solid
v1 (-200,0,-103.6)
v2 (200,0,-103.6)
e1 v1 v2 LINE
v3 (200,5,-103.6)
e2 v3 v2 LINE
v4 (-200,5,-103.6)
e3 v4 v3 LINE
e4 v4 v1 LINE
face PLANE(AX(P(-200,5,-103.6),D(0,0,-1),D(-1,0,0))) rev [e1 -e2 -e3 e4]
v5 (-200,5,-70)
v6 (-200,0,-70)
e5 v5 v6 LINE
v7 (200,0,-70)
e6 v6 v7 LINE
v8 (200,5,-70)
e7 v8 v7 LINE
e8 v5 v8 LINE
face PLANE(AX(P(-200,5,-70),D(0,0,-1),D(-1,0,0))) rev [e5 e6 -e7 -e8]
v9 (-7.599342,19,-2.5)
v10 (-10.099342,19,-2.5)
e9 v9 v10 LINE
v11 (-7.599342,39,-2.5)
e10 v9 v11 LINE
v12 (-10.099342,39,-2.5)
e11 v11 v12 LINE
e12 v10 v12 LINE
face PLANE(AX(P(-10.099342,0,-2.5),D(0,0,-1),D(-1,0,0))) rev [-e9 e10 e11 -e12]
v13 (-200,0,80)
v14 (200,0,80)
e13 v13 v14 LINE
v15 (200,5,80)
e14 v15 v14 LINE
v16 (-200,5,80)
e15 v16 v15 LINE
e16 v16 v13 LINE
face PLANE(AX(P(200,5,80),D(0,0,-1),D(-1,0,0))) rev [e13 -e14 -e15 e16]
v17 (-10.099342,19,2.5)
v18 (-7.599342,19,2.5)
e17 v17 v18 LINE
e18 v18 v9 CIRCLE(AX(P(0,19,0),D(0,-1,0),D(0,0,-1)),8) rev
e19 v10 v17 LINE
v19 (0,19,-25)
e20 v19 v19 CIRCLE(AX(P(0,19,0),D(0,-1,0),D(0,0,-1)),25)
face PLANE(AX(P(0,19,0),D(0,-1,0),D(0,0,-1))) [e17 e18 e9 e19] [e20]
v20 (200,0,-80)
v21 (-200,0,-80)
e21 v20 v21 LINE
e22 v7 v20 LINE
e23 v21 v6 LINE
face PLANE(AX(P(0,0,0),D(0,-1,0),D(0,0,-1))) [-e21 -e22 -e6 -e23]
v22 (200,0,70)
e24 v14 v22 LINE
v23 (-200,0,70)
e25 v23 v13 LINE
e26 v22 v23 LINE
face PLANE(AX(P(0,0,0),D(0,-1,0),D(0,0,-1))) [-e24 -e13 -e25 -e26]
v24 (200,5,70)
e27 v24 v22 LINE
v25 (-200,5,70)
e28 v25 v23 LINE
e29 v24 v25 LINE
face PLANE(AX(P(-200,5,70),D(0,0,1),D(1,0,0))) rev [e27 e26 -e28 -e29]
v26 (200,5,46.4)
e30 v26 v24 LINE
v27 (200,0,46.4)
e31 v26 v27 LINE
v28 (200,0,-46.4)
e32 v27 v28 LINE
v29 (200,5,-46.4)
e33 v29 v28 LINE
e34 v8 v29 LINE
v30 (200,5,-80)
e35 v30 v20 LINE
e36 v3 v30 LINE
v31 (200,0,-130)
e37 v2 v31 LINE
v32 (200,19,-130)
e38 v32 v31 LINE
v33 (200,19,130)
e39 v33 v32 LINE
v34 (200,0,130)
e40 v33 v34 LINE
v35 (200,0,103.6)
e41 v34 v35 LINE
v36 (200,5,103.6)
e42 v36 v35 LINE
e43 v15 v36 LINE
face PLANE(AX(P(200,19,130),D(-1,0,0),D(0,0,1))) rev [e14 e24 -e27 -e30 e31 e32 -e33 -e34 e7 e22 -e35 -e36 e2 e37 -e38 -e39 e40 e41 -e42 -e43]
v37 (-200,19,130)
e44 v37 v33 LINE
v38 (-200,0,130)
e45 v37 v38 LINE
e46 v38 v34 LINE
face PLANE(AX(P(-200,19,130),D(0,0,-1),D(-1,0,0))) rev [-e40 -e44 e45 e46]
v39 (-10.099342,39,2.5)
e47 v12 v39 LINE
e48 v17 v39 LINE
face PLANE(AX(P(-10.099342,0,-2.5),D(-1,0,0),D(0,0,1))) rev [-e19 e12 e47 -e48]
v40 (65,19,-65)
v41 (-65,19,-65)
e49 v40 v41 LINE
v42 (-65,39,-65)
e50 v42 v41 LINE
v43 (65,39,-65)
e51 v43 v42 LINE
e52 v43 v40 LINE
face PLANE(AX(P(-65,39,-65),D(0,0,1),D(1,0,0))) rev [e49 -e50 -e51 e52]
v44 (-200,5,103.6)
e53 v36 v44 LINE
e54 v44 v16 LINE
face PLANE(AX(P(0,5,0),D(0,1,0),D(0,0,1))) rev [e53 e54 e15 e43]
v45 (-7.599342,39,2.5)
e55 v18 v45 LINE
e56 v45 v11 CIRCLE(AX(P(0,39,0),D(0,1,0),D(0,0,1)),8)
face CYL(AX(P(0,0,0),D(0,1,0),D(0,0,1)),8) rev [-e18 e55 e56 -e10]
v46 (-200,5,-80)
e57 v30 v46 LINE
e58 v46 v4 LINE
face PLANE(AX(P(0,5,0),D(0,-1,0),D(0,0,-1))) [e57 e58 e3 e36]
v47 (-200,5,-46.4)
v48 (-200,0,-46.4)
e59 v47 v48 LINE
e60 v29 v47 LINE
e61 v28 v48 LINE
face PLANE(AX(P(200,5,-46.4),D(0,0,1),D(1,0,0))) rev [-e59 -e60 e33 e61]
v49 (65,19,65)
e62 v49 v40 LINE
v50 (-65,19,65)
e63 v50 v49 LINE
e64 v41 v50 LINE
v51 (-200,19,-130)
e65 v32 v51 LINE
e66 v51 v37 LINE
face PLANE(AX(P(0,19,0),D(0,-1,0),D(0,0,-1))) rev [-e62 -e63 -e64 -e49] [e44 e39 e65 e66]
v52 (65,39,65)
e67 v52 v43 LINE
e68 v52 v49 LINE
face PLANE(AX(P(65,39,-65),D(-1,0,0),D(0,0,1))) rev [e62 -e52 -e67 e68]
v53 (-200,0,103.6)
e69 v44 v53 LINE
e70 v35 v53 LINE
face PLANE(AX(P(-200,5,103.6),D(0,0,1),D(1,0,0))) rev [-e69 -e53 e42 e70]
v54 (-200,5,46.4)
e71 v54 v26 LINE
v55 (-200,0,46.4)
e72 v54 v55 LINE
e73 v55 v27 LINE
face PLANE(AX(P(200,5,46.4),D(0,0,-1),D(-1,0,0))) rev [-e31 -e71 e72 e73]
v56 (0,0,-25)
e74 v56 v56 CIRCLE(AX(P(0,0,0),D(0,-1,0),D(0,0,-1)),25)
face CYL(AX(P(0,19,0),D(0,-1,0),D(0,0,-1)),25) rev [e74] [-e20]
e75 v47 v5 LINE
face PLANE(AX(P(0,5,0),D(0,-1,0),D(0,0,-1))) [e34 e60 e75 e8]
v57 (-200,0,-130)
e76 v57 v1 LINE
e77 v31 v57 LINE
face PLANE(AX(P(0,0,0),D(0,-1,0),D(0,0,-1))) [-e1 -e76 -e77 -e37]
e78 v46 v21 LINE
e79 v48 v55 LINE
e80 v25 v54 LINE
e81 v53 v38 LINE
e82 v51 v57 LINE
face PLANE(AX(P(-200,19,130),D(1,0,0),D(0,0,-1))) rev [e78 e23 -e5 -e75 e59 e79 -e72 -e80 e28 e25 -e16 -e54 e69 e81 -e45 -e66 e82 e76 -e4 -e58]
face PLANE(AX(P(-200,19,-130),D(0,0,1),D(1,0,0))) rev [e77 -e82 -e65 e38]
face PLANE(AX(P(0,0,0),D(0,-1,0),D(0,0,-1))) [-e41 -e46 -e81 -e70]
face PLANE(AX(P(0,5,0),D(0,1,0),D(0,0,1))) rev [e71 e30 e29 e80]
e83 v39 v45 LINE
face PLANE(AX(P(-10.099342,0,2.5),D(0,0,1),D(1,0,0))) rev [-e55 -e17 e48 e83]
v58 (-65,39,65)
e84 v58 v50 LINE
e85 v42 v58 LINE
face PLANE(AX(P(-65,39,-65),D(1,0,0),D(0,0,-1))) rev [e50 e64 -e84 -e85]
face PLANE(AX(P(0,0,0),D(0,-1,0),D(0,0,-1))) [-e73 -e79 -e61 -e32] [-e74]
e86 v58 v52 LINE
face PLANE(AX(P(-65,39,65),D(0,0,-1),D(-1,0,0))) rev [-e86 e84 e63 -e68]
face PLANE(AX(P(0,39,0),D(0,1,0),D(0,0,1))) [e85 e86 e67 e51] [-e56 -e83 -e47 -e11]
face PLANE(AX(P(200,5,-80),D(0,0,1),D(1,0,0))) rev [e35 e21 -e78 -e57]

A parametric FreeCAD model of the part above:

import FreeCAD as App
import Part
import Sketcher


def add_polygon(sketch, points):
    """Adds a closed chain of lines whose ends are joined by coincident constraints."""
    first, n = sketch.GeometryCount, len(points)
    for a, b in zip(points, points[1:] + points[:1]):
        sketch.addGeometry(Part.LineSegment(App.Vector(*a, 0), App.Vector(*b, 0)), False)
    for i in range(n):
        sketch.addConstraint(Sketcher.Constraint("Coincident", first + i, 2, first + (i + 1) % n, 1))

doc = App.newDocument("Part")
params = doc.addObject("Spreadsheet::Sheet", "Params")
for row, (alias, value) in enumerate([
    ("sketch1_width", "400 mm"),
    ("sketch1_height", "260 mm"),
    ("pad1_length", "19 mm"),
    ("sketch2_width", "400 mm"),
    ("sketch2_height", "23.6 mm"),
    ("pocket1_length", "5 mm"),
    ("sketch3_width", "130 mm"),
    ("pad2_length", "20 mm"),
    ("sketch4_diameter", "16 mm"),
    ("sketch5_height", "5 mm"),
    ("sketch5_width", "2.5 mm"),
    ("sketch6_diameter", "50 mm"),
    ("pocket4_length", "19 mm"),
], start=1):
    params.set(f"A{row}", alias)
    params.set(f"B{row}", "=" + value)
    params.setAlias(f"B{row}", alias)

body = doc.addObject("PartDesign::Body", "Body")

sketch1 = body.newObject("Sketcher::SketchObject", "Sketch")
sketch1.AttachmentSupport = (doc.getObject("XZ_Plane"), [""])
sketch1.MapMode = "FlatFace"
add_polygon(sketch1, [(-200, -130), (-200, 130), (200, 130), (200, -130)])
sketch1.addConstraint([
    Sketcher.Constraint("Vertical", 0),
    Sketcher.Constraint("Horizontal", 1),
    Sketcher.Constraint("Vertical", 2),
    Sketcher.Constraint("Horizontal", 3),
    Sketcher.Constraint("Symmetric", 0, 2, 2, 2, -1, 1),
    Sketcher.Constraint("DistanceX", 1, 1, 1, 2, 400.0),
    Sketcher.Constraint("DistanceY", 0, 1, 0, 2, 260.0),
])
sketch1.setExpression("Constraints[9]", "Params.sketch1_width")
sketch1.setExpression("Constraints[10]", "Params.sketch1_height")
pad1 = body.newObject("PartDesign::Pad", "Pad")
pad1.Profile = sketch1
pad1.setExpression("Length", "Params.pad1_length")
pad1.Reversed = True

sketch2 = body.newObject("Sketcher::SketchObject", "Sketch001")
sketch2.AttachmentSupport = (doc.getObject("XZ_Plane"), [""])
sketch2.MapMode = "FlatFace"
add_polygon(sketch2, [(-200, 103.6), (-200, 80), (200, 80), (200, 103.6)])
add_polygon(sketch2, [(-200, 70), (-200, 46.4), (200, 46.4), (200, 70)])
add_polygon(sketch2, [(-200, -46.4), (-200, -70), (200, -70), (200, -46.4)])
add_polygon(sketch2, [(-200, -80), (-200, -103.6), (200, -103.6), (200, -80)])
sketch2.addConstraint([
    Sketcher.Constraint("Vertical", 0),
    Sketcher.Constraint("Horizontal", 1),
    Sketcher.Constraint("Vertical", 2),
    Sketcher.Constraint("Horizontal", 3),
    Sketcher.Constraint("Vertical", 4),
    Sketcher.Constraint("Horizontal", 5),
    Sketcher.Constraint("Vertical", 6),
    Sketcher.Constraint("Horizontal", 7),
    Sketcher.Constraint("Vertical", 8),
    Sketcher.Constraint("Horizontal", 9),
    Sketcher.Constraint("Vertical", 10),
    Sketcher.Constraint("Horizontal", 11),
    Sketcher.Constraint("Vertical", 12),
    Sketcher.Constraint("Horizontal", 13),
    Sketcher.Constraint("Vertical", 14),
    Sketcher.Constraint("Horizontal", 15),
    Sketcher.Constraint("Symmetric", 6, 2, 8, 2, -1, 1),
    Sketcher.Constraint("Symmetric", 4, 2, 10, 2, -1, 1),
    Sketcher.Constraint("Symmetric", 2, 2, 12, 2, -1, 1),
    Sketcher.Constraint("Symmetric", 0, 2, 14, 2, -1, 1),
    Sketcher.Constraint("Vertical", 3, 2, 4, 2),
    Sketcher.Constraint("Vertical", 2, 2, 5, 2),
    Sketcher.Constraint("Vertical", 7, 2, 8, 2),
    Sketcher.Constraint("Equal", 2, 4),
    Sketcher.Constraint("DistanceX", 1, 1, 1, 2, 400.0),
    Sketcher.Constraint("DistanceY", 0, 2, 0, 1, 23.6),
    Sketcher.Constraint("DistanceY", -1, 1, 0, 2, 80.0),
    Sketcher.Constraint("DistanceY", -1, 1, 6, 2, 70.0),
])
sketch2.setExpression("Constraints[40]", "Params.sketch2_width")
sketch2.setExpression("Constraints[41]", "Params.sketch2_height")
pocket1 = body.newObject("PartDesign::Pocket", "Pocket")
pocket1.Profile = sketch2
pocket1.setExpression("Length", "Params.pocket1_length")

sketch3 = body.newObject("Sketcher::SketchObject", "Sketch002")
sketch3.AttachmentSupport = (doc.getObject("XZ_Plane"), [""])
sketch3.MapMode = "FlatFace"
sketch3.AttachmentOffset = App.Placement(App.Vector(0, 0, -19), App.Rotation())
add_polygon(sketch3, [(-65, -65), (-65, 65), (65, 65), (65, -65)])
sketch3.addConstraint([
    Sketcher.Constraint("Vertical", 0),
    Sketcher.Constraint("Horizontal", 1),
    Sketcher.Constraint("Vertical", 2),
    Sketcher.Constraint("Horizontal", 3),
    Sketcher.Constraint("Symmetric", 0, 2, 2, 2, -1, 1),
    Sketcher.Constraint("Equal", 3, 0),
    Sketcher.Constraint("DistanceX", 1, 1, 1, 2, 130.0),
])
sketch3.setExpression("Constraints[10]", "Params.sketch3_width")
pad2 = body.newObject("PartDesign::Pad", "Pad001")
pad2.Profile = sketch3
pad2.setExpression("Length", "Params.pad2_length")
pad2.Reversed = True

sketch4 = body.newObject("Sketcher::SketchObject", "Sketch003")
sketch4.AttachmentSupport = (doc.getObject("XZ_Plane"), [""])
sketch4.MapMode = "FlatFace"
sketch4.AttachmentOffset = App.Placement(App.Vector(0, 0, -39), App.Rotation())
sketch4.addGeometry(Part.Circle(App.Vector(0, 0, 0), App.Vector(0, 0, 1), 8), False)
sketch4.addConstraint([
    Sketcher.Constraint("Coincident", 0, 3, -1, 1),
    Sketcher.Constraint("Diameter", 0, 16.0),
])
sketch4.setExpression("Constraints[1]", "Params.sketch4_diameter")
pocket2 = body.newObject("PartDesign::Pocket", "Pocket001")
pocket2.Profile = sketch4
pocket2.Type = "ThroughAll"
pocket2.Reversed = True

sketch5 = body.newObject("Sketcher::SketchObject", "Sketch004")
sketch5.AttachmentSupport = (doc.getObject("XZ_Plane"), [""])
sketch5.MapMode = "FlatFace"
sketch5.AttachmentOffset = App.Placement(App.Vector(0, 0, -39), App.Rotation())
add_polygon(sketch5, [(-10.099342, -2.5), (-10.099342, 2.5), (-7.599342, 2.5), (-7.599342, -2.5)])
sketch5.addConstraint([
    Sketcher.Constraint("Vertical", 0),
    Sketcher.Constraint("Horizontal", 1),
    Sketcher.Constraint("Vertical", 2),
    Sketcher.Constraint("Horizontal", 3),
    Sketcher.Constraint("DistanceY", 0, 1, 0, 2, 5.0),
    Sketcher.Constraint("DistanceX", 1, 1, 1, 2, 2.5),
    Sketcher.Constraint("DistanceY", -1, 1, 0, 2, 2.5),
    Sketcher.Constraint("DistanceX", 0, 2, -1, 1, 10.099342),
])
sketch5.setExpression("Constraints[8]", "Params.sketch5_height")
sketch5.setExpression("Constraints[9]", "Params.sketch5_width")
pocket3 = body.newObject("PartDesign::Pocket", "Pocket002")
pocket3.Profile = sketch5
pocket3.Type = "ThroughAll"
pocket3.Reversed = True

sketch6 = body.newObject("Sketcher::SketchObject", "Sketch005")
sketch6.AttachmentSupport = (doc.getObject("XZ_Plane"), [""])
sketch6.MapMode = "FlatFace"
sketch6.addGeometry(Part.Circle(App.Vector(0, 0, 0), App.Vector(0, 0, 1), 25), False)
sketch6.addConstraint([
    Sketcher.Constraint("Coincident", 0, 3, -1, 1),
    Sketcher.Constraint("Diameter", 0, 50.0),
])
sketch6.setExpression("Constraints[1]", "Params.sketch6_diameter")
pocket4 = body.newObject("PartDesign::Pocket", "Pocket003")
pocket4.Profile = sketch6
pocket4.setExpression("Length", "Params.pocket4_length")

doc.recompute()
